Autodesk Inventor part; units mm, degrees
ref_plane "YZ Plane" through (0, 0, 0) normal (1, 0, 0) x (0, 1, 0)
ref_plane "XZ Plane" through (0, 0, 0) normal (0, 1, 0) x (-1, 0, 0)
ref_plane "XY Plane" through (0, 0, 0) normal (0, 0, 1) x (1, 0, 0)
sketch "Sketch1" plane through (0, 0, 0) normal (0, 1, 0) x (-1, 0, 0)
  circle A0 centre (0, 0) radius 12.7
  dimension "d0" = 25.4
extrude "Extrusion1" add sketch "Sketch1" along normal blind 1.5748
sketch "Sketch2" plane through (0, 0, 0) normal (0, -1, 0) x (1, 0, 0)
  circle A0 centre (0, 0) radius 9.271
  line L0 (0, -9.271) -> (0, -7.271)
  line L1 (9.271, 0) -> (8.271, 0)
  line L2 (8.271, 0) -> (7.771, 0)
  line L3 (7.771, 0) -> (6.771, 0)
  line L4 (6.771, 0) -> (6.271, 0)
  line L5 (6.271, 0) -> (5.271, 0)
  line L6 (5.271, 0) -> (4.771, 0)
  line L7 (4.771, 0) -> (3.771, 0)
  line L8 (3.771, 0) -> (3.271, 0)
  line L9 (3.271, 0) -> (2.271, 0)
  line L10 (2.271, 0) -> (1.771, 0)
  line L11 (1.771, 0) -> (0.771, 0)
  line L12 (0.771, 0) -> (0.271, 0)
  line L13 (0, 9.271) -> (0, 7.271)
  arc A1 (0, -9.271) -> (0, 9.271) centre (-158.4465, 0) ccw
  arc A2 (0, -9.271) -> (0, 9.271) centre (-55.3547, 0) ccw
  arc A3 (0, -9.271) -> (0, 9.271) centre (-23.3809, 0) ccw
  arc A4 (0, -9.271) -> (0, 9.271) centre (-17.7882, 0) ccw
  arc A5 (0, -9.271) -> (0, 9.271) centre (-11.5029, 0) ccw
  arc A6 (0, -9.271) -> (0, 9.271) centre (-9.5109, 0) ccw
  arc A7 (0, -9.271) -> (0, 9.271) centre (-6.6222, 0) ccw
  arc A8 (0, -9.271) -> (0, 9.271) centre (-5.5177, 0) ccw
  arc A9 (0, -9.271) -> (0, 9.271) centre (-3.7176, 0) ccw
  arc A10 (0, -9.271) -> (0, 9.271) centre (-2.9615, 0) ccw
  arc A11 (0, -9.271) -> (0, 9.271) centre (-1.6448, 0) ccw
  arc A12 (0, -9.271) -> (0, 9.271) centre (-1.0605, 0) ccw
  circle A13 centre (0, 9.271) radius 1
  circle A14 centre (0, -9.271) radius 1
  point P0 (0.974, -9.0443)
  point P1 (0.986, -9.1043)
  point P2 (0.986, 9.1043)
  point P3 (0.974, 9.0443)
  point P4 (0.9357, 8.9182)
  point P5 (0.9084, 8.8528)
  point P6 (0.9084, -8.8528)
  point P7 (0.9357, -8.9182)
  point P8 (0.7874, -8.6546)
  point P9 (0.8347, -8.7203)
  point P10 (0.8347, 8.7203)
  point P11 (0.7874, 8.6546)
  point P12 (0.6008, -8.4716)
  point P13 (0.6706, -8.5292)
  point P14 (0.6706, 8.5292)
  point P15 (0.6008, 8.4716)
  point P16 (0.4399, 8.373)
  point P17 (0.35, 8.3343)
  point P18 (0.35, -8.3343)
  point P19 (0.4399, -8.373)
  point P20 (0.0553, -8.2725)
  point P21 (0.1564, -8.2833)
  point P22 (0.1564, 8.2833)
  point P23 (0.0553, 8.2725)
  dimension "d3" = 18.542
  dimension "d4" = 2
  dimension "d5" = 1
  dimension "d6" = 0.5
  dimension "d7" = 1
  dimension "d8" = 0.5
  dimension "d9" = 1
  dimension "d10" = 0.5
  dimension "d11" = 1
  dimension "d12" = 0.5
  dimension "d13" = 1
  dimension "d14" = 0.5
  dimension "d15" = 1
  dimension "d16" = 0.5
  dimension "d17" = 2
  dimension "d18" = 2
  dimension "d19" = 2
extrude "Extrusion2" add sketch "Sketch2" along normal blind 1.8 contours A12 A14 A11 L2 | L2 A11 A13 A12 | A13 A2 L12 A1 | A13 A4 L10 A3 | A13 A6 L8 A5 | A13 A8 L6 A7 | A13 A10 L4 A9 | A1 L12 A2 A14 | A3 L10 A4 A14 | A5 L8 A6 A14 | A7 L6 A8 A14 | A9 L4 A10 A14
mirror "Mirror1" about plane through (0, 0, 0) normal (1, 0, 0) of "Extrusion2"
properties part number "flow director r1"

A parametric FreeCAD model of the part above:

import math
import FreeCAD as App
import Part
import Sketcher
from FreeCAD import Vector
Q = App.Units.Quantity

doc = App.newDocument("Part")
body = doc.addObject("PartDesign::Body", "Body")

sketch1 = doc.addObject("Sketcher::SketchObject", "Sketch")
body.addObject(sketch1)
sketch1.AttachmentSupport = (doc.XZ_Plane, [""])
sketch1.MapMode = "FlatFace"
sketch1.addGeometry(Part.Circle(Vector(0, 0, 0), Vector(0, 0, 1), 13), False)
sketch1.addConstraint([
    Sketcher.Constraint("Coincident", 0, 3, -1, 1),
    Sketcher.Constraint("Diameter", 0, Q("25.4 mm")),
])
pad1 = doc.addObject("PartDesign::Pad", "Pad")
body.addObject(pad1)
pad1.Profile = sketch1
pad1.Length = 1.5748
pad1.Reversed = True

sketch2 = doc.addObject("Sketcher::SketchObject", "Sketch001")
body.addObject(sketch2)
sketch2.AttachmentSupport = (doc.XZ_Plane, [""])
sketch2.MapMode = "FlatFace"
sketch2.addGeometry([
    Part.ArcOfCircle(Part.Circle(Vector(-1.06, 0, 0), Vector(0, 0, 1), 9.33), math.radians(-77), math.radians(77)),
    Part.ArcOfCircle(Part.Circle(Vector(0, 9.27, 0), Vector(0, 0, 1), 1), math.radians(-13.1), math.radians(-9.6)),
    Part.ArcOfCircle(Part.Circle(Vector(-1.64, 0, 0), Vector(0, 0, 1), 9.42), math.radians(-74), math.radians(74)),
    Part.ArcOfCircle(Part.Circle(Vector(0, -9.27, 0), Vector(0, 0, 1), 1), math.radians(9.6), math.radians(13.1)),
    Part.ArcOfCircle(Part.Circle(Vector(0, 9.27, 0), Vector(0, 0, 1), 1), math.radians(-86.83), math.radians(-81)),
    Part.ArcOfCircle(Part.Circle(Vector(-158.45, 0, 0), Vector(0, 0, 1), 158.72), math.radians(-2.99), math.radians(2.99)),
    Part.ArcOfCircle(Part.Circle(Vector(0, -9.27, 0), Vector(0, 0, 1), 1), math.radians(81), math.radians(86.83)),
    Part.ArcOfCircle(Part.Circle(Vector(-55.35, 0, 0), Vector(0, 0, 1), 56.13), math.radians(-8.49), math.radians(8.49)),
    Part.ArcOfCircle(Part.Circle(Vector(0, 9.27, 0), Vector(0, 0, 1), 1), math.radians(-69.51), math.radians(-63.9)),
    Part.ArcOfCircle(Part.Circle(Vector(-23.38, 0, 0), Vector(0, 0, 1), 25.15), math.radians(-19), math.radians(19)),
    Part.ArcOfCircle(Part.Circle(Vector(0, -9.27, 0), Vector(0, 0, 1), 1), math.radians(63.9), math.radians(69.51)),
    Part.ArcOfCircle(Part.Circle(Vector(-17.79, 0, 0), Vector(0, 0, 1), 20.06), math.radians(-25), math.radians(25)),
    Part.ArcOfCircle(Part.Circle(Vector(0, 9.27, 0), Vector(0, 0, 1), 1), math.radians(-53.07), math.radians(-47.89)),
    Part.ArcOfCircle(Part.Circle(Vector(-11.5, 0, 0), Vector(0, 0, 1), 14.77), math.radians(-35), math.radians(35)),
    Part.ArcOfCircle(Part.Circle(Vector(0, -9.27, 0), Vector(0, 0, 1), 1), math.radians(47.89), math.radians(53.07)),
    Part.ArcOfCircle(Part.Circle(Vector(-9.51, 0, 0), Vector(0, 0, 1), 13.28), math.radians(-40), math.radians(40)),
    Part.ArcOfCircle(Part.Circle(Vector(0, 9.27, 0), Vector(0, 0, 1), 1), math.radians(-38.05), math.radians(-33.42)),
    Part.ArcOfCircle(Part.Circle(Vector(-6.62, 0, 0), Vector(0, 0, 1), 11.39), math.radians(-49), math.radians(49)),
    Part.ArcOfCircle(Part.Circle(Vector(0, -9.27, 0), Vector(0, 0, 1), 1), math.radians(33.42), math.radians(38.05)),
    Part.ArcOfCircle(Part.Circle(Vector(-5.52, 0, 0), Vector(0, 0, 1), 10.79), math.radians(-54), math.radians(54)),
    Part.ArcOfCircle(Part.Circle(Vector(0, 9.27, 0), Vector(0, 0, 1), 1), math.radians(-24.72), math.radians(-20.66)),
    Part.ArcOfCircle(Part.Circle(Vector(-3.72, 0, 0), Vector(0, 0, 1), 9.99), math.radians(-62), math.radians(62)),
    Part.ArcOfCircle(Part.Circle(Vector(0, -9.27, 0), Vector(0, 0, 1), 1), math.radians(20.66), math.radians(24.72)),
    Part.ArcOfCircle(Part.Circle(Vector(-2.96, 0, 0), Vector(0, 0, 1), 9.73), math.radians(-66), math.radians(66)),
], False)
sketch2.addConstraint([
    Sketcher.Constraint("Coincident", 0, 2, 1, 2),
    Sketcher.Constraint("Coincident", 1, 1, 2, 2),
    Sketcher.Constraint("Coincident", 2, 1, 3, 2),
    Sketcher.Constraint("Coincident", 3, 1, 0, 1),
    Sketcher.Constraint("Coincident", 4, 1, 5, 2),
    Sketcher.Constraint("Coincident", 5, 1, 6, 2),
    Sketcher.Constraint("Coincident", 6, 1, 7, 1),
    Sketcher.Constraint("Coincident", 7, 2, 4, 2),
    Sketcher.Constraint("Coincident", 8, 1, 9, 2),
    Sketcher.Constraint("Coincident", 9, 1, 10, 2),
    Sketcher.Constraint("Coincident", 10, 1, 11, 1),
    Sketcher.Constraint("Coincident", 11, 2, 8, 2),
    Sketcher.Constraint("Coincident", 12, 1, 13, 2),
    Sketcher.Constraint("Coincident", 13, 1, 14, 2),
    Sketcher.Constraint("Coincident", 14, 1, 15, 1),
    Sketcher.Constraint("Coincident", 15, 2, 12, 2),
    Sketcher.Constraint("Coincident", 16, 1, 17, 2),
    Sketcher.Constraint("Coincident", 17, 1, 18, 2),
    Sketcher.Constraint("Coincident", 18, 1, 19, 1),
    Sketcher.Constraint("Coincident", 19, 2, 16, 2),
    Sketcher.Constraint("Coincident", 20, 1, 21, 2),
    Sketcher.Constraint("Coincident", 21, 1, 22, 2),
    Sketcher.Constraint("Coincident", 22, 1, 23, 1),
    Sketcher.Constraint("Coincident", 23, 2, 20, 2),
    Sketcher.Constraint("Coincident", 4, 3, 1, 3),
    Sketcher.Constraint("Coincident", 6, 3, 3, 3),
    Sketcher.Constraint("Coincident", 8, 3, 1, 3),
    Sketcher.Constraint("Coincident", 10, 3, 3, 3),
    Sketcher.Constraint("Coincident", 12, 3, 1, 3),
    Sketcher.Constraint("Coincident", 14, 3, 3, 3),
    Sketcher.Constraint("Coincident", 16, 3, 1, 3),
    Sketcher.Constraint("Coincident", 18, 3, 3, 3),
    Sketcher.Constraint("Coincident", 20, 3, 1, 3),
    Sketcher.Constraint("Coincident", 22, 3, 3, 3),
    Sketcher.Constraint("Equal", 1, 3),
    Sketcher.Constraint("Equal", 3, 4),
    Sketcher.Constraint("Equal", 4, 6),
    Sketcher.Constraint("Equal", 6, 8),
    Sketcher.Constraint("Equal", 8, 10),
    Sketcher.Constraint("Equal", 10, 12),
    Sketcher.Constraint("Equal", 12, 14),
    Sketcher.Constraint("Equal", 14, 16),
    Sketcher.Constraint("Equal", 16, 18),
    Sketcher.Constraint("Equal", 18, 20),
    Sketcher.Constraint("Equal", 20, 22),
    Sketcher.Constraint("Symmetric", 1, 3, 3, 3, -1, 1),
    Sketcher.Constraint("Symmetric", 1, 1, 2, 1, -1),
    Sketcher.Constraint("PointOnObject", 0, 3, -1),
    Sketcher.Constraint("PointOnObject", 5, 3, -1),
    Sketcher.Constraint("PointOnObject", 7, 3, -1),
    Sketcher.Constraint("PointOnObject", 9, 3, -1),
    Sketcher.Constraint("PointOnObject", 11, 3, -1),
    Sketcher.Constraint("PointOnObject", 13, 3, -1),
    Sketcher.Constraint("PointOnObject", 15, 3, -1),
    Sketcher.Constraint("PointOnObject", 17, 3, -1),
    Sketcher.Constraint("PointOnObject", 19, 3, -1),
    Sketcher.Constraint("PointOnObject", 21, 3, -1),
    Sketcher.Constraint("PointOnObject", 23, 3, -1),
    Sketcher.Constraint("Radius", 1, Q("1 mm")),
    Sketcher.Constraint("Radius", 9, Q("25.152 mm")),
    Sketcher.Constraint("Radius", 13, Q("14.774 mm")),
    Sketcher.Constraint("Radius", 15, Q("13.282 mm")),
    Sketcher.Constraint("DistanceY", 3, 3, 1, 3, Q("18.542 mm")),
    Sketcher.Constraint("Radius", 0, Q("9.3315 mm")),
    Sketcher.Constraint("Radius", 2, Q("9.4158 mm")),
    Sketcher.Constraint("Radius", 5, Q("158.7175 mm")),
    Sketcher.Constraint("Radius", 7, Q("56.1257 mm")),
    Sketcher.Constraint("Radius", 11, Q("20.0592 mm")),
    Sketcher.Constraint("Radius", 17, Q("11.3932 mm")),
    Sketcher.Constraint("Radius", 19, Q("10.7887 mm")),
    Sketcher.Constraint("Radius", 21, Q("9.9886 mm")),
    Sketcher.Constraint("Radius", 23, Q("9.7325 mm")),
    Sketcher.Constraint("DistanceX", 19, 3, 21, 3, Q("1.8 mm")),
    Sketcher.Constraint("DistanceX", -1, 1, 8, 1, Q("0.35 mm")),
    Sketcher.Constraint("DistanceX", -1, 1, 10, 1, Q("0.44 mm")),
    Sketcher.Constraint("DistanceX", 7, 3, 2, 3, Q("53.71 mm")),
    Sketcher.Constraint("DistanceY", 1, 1, 0, 2, Q("0.06 mm")),
    Sketcher.Constraint("DistanceY", 8, 1, 1, 1, Q("0.71 mm")),
    Sketcher.Constraint("DistanceX", 13, 3, -1, 1, Q("11.503 mm")),
    Sketcher.Constraint("DistanceX", 15, 3, -1, 1, Q("9.511 mm")),
    Sketcher.Constraint("DistanceX", 5, 3, 0, 3, Q("157.386 mm")),
    Sketcher.Constraint("DistanceX", 11, 3, 17, 3, Q("11.166 mm")),
    Sketcher.Constraint("DistanceX", 19, 3, 2, 3, Q("3.873 mm")),
    Sketcher.Constraint("DistanceX", 21, 3, 23, 3, Q("0.756 mm")),
])
pad2 = doc.addObject("PartDesign::Pad", "Pad001")
body.addObject(pad2)
pad2.Profile = sketch2
pad2.Length = 1.8
doc.recompute()

mirrored = doc.addObject("PartDesign::Mirrored", "Mirrored")
body.addObject(mirrored)
mirrored.Originals = [pad2]
mirrored.MirrorPlane = (doc.YZ_Plane, [""])
body.Tip = mirrored

doc.recompute()
